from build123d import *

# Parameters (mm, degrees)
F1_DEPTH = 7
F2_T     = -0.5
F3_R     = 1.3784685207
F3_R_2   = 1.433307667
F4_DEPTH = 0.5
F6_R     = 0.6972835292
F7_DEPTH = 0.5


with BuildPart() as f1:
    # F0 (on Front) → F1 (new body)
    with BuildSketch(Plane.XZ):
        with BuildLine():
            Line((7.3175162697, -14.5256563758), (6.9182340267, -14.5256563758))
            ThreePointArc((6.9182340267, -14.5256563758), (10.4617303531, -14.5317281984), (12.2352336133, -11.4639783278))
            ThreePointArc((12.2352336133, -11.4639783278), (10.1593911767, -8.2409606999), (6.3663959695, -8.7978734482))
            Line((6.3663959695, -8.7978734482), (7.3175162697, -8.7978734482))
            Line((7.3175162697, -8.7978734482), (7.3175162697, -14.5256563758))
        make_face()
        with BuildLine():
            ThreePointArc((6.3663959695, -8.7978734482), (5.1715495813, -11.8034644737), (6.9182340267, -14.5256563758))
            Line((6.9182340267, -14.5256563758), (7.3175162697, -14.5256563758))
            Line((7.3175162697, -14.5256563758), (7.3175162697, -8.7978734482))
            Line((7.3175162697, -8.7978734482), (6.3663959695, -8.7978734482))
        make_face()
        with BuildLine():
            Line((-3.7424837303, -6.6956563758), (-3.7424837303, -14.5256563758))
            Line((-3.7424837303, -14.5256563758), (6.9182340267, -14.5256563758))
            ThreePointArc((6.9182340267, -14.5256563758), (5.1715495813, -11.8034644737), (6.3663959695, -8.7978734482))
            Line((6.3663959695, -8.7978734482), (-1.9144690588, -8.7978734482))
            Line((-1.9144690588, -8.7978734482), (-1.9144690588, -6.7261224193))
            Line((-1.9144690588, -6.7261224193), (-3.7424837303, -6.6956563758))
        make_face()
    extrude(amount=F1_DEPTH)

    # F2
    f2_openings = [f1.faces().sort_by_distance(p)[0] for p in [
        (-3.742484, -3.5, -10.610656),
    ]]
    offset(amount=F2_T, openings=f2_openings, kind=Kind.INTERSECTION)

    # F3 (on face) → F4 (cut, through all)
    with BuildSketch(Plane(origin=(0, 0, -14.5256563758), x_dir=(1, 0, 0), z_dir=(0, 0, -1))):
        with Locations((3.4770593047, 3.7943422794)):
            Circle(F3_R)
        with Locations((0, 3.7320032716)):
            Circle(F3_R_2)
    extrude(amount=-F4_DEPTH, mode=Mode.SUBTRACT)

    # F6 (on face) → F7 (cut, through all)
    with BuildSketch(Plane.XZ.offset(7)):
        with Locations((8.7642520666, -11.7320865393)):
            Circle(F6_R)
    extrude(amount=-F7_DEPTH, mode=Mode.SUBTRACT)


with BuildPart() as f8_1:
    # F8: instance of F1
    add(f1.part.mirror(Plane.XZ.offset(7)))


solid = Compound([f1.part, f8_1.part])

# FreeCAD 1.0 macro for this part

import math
import FreeCAD as App
import Part
import Sketcher
Q = App.Units.Quantity


def faces_at(feature, points):
    """Names of the faces that lie closest to the given points."""
    faces = feature.Shape.Faces
    near = lambda p: min(range(len(faces)), key=lambda i: faces[i].distToShape(Part.Vertex(*p))[0])
    return sorted({f"Face{near(p) + 1}" for p in points})

doc = App.newDocument("Part")
body = doc.addObject("PartDesign::Body", "Body")

# Sketch on XZ plane
sketch1 = body.newObject("Sketcher::SketchObject", "Sketch")
sketch1.AttachmentSupport = (doc.getObject("XZ_Plane"), [""])
sketch1.MapMode = "FlatFace"
sketch1.addGeometry(Part.ArcOfCircle(Part.Circle(App.Vector(8.7, -11.5, 0), App.Vector(0, 0, 1), 3.5), math.radians(-120), math.radians(0)), False)
sketch1.addGeometry(Part.ArcOfCircle(Part.Circle(App.Vector(8.7, -11.5, 0), App.Vector(0, 0, 1), 3.5), math.radians(0), math.radians(131)), False)
sketch1.addGeometry(Part.LineSegment(App.Vector(6.4, -8.8, 0), App.Vector(-1.9, -8.8, 0)), False)
sketch1.addGeometry(Part.LineSegment(App.Vector(-1.9, -8.8, 0), App.Vector(-1.9, -6.7, 0)), False)
sketch1.addGeometry(Part.LineSegment(App.Vector(-1.9, -6.7, 0), App.Vector(-3.7, -6.7, 0)), False)
sketch1.addGeometry(Part.LineSegment(App.Vector(-3.7, -6.7, 0), App.Vector(-3.7, -14.5, 0)), False)
sketch1.addGeometry(Part.LineSegment(App.Vector(-3.7, -14.5, 0), App.Vector(6.9, -14.5, 0)), False)
sketch1.addConstraint(Sketcher.Constraint("Tangent", 0, 2, 1, 1))
sketch1.addConstraint(Sketcher.Constraint("Coincident", 1, 2, 2, 1))
sketch1.addConstraint(Sketcher.Constraint("Coincident", 2, 2, 3, 1))
sketch1.addConstraint(Sketcher.Constraint("Coincident", 3, 2, 4, 1))
sketch1.addConstraint(Sketcher.Constraint("Coincident", 4, 2, 5, 1))
sketch1.addConstraint(Sketcher.Constraint("Coincident", 5, 2, 6, 1))
sketch1.addConstraint(Sketcher.Constraint("Coincident", 6, 2, 0, 1))
sketch1.addConstraint(Sketcher.Constraint("Horizontal", 2))
sketch1.addConstraint(Sketcher.Constraint("Vertical", 3))
sketch1.addConstraint(Sketcher.Constraint("Vertical", 5))
sketch1.addConstraint(Sketcher.Constraint("Horizontal", 6))
sketch1.addConstraint(Sketcher.Constraint("Equal", 0, 1))
sketch1.addConstraint(Sketcher.Constraint("Horizontal", 1, 3, 0, 2))
sketch1.addConstraint(Sketcher.Constraint("Radius", 0, Q("3.54 mm")))
sketch1.addConstraint(Sketcher.Constraint("DistanceY", 5, 2, 5, 1, Q("7.83 mm")))
sketch1.addConstraint(Sketcher.Constraint("DistanceX", 6, 2, 0, 3, Q("1.777 mm")))
sketch1.addConstraint(Sketcher.Constraint("DistanceY", 3, 1, 3, 2, Q("2.071751 mm")))
sketch1.addConstraint(Sketcher.Constraint("Distance", 4, Q("1.828269 mm")))
sketch1.addConstraint(Sketcher.Constraint("DistanceX", 2, 2, 2, 1, Q("8.280865 mm")))
sketch1.addConstraint(Sketcher.Constraint("DistanceX", 6, 1, 6, 2, Q("10.660718 mm")))
sketch1.addConstraint(Sketcher.Constraint("DistanceY", 0, 3, -1, 1, Q("11.463978 mm")))
sketch1.addConstraint(Sketcher.Constraint("DistanceX", 2, 2, -1, 1, Q("1.914469 mm")))
pad1 = body.newObject("PartDesign::Pad", "Pad")
pad1.Profile = sketch1
pad1.Length = 7
doc.recompute()

thickness = body.newObject("PartDesign::Thickness", "Thickness")
thickness.Base = (pad1, faces_at(pad1, [(-3.742, -3.5, -10.611)]))
thickness.Value = 0.5
thickness.Reversed = True
thickness.Join = "Intersection"

# Sketch on XY plane
sketch2 = body.newObject("Sketcher::SketchObject", "Sketch001")
sketch2.AttachmentSupport = (doc.getObject("XY_Plane"), [""])
sketch2.MapMode = "FlatFace"
sketch2.AttachmentOffset = App.Placement(App.Vector(0, 0, -14.525656), App.Rotation())
sketch2.addGeometry(Part.Circle(App.Vector(3.5, -3.8, 0), App.Vector(0, 0, 1), 1.4), False)
sketch2.addGeometry(Part.Circle(App.Vector(0, -3.7, 0), App.Vector(0, 0, 1), 1.4), False)
sketch2.addConstraint(Sketcher.Constraint("PointOnObject", 1, 3, -2))
sketch2.addConstraint(Sketcher.Constraint("Diameter", 0, Q("2.756937 mm")))
sketch2.addConstraint(Sketcher.Constraint("Diameter", 1, Q("2.866615 mm")))
sketch2.addConstraint(Sketcher.Constraint("DistanceX", -1, 1, 0, 3, Q("3.477059 mm")))
sketch2.addConstraint(Sketcher.Constraint("DistanceY", 0, 3, 1, 3, Q("0.062339 mm")))
sketch2.addConstraint(Sketcher.Constraint("DistanceY", 0, 3, -1, 1, Q("3.794342 mm")))
pocket1 = body.newObject("PartDesign::Pocket", "Pocket")
pocket1.Profile = sketch2
pocket1.Length = 0.5
pocket1.Reversed = True

# Sketch on XZ plane
sketch3 = body.newObject("Sketcher::SketchObject", "Sketch002")
sketch3.AttachmentSupport = (doc.getObject("XZ_Plane"), [""])
sketch3.MapMode = "FlatFace"
sketch3.AttachmentOffset = App.Placement(App.Vector(0, 0, 7), App.Rotation())
sketch3.addGeometry(Part.Circle(App.Vector(8.8, -11.7, 0), App.Vector(0, 0, 1), 0.7), False)
sketch3.addConstraint(Sketcher.Constraint("Diameter", 0, Q("1.394567 mm")))
sketch3.addConstraint(Sketcher.Constraint("DistanceX", -1, 1, 0, 3, Q("8.764252 mm")))
sketch3.addConstraint(Sketcher.Constraint("DistanceY", 0, 3, -1, 1, Q("11.732087 mm")))
pocket2 = body.newObject("PartDesign::Pocket", "Pocket001")
pocket2.Profile = sketch3
pocket2.Length = 0.5
body2 = doc.addObject("PartDesign::Body", "Body001")
doc.recompute()

mirroring = doc.addObject("Part::Mirroring", "Mirroring")
mirroring.Source = body
mirroring.Base = App.Vector(0, -7, 0)
mirroring.Normal = App.Vector(0, -1, 0)
body2.BaseFeature = mirroring
doc.recompute()
mirroring.Visibility = False

doc.recompute()
